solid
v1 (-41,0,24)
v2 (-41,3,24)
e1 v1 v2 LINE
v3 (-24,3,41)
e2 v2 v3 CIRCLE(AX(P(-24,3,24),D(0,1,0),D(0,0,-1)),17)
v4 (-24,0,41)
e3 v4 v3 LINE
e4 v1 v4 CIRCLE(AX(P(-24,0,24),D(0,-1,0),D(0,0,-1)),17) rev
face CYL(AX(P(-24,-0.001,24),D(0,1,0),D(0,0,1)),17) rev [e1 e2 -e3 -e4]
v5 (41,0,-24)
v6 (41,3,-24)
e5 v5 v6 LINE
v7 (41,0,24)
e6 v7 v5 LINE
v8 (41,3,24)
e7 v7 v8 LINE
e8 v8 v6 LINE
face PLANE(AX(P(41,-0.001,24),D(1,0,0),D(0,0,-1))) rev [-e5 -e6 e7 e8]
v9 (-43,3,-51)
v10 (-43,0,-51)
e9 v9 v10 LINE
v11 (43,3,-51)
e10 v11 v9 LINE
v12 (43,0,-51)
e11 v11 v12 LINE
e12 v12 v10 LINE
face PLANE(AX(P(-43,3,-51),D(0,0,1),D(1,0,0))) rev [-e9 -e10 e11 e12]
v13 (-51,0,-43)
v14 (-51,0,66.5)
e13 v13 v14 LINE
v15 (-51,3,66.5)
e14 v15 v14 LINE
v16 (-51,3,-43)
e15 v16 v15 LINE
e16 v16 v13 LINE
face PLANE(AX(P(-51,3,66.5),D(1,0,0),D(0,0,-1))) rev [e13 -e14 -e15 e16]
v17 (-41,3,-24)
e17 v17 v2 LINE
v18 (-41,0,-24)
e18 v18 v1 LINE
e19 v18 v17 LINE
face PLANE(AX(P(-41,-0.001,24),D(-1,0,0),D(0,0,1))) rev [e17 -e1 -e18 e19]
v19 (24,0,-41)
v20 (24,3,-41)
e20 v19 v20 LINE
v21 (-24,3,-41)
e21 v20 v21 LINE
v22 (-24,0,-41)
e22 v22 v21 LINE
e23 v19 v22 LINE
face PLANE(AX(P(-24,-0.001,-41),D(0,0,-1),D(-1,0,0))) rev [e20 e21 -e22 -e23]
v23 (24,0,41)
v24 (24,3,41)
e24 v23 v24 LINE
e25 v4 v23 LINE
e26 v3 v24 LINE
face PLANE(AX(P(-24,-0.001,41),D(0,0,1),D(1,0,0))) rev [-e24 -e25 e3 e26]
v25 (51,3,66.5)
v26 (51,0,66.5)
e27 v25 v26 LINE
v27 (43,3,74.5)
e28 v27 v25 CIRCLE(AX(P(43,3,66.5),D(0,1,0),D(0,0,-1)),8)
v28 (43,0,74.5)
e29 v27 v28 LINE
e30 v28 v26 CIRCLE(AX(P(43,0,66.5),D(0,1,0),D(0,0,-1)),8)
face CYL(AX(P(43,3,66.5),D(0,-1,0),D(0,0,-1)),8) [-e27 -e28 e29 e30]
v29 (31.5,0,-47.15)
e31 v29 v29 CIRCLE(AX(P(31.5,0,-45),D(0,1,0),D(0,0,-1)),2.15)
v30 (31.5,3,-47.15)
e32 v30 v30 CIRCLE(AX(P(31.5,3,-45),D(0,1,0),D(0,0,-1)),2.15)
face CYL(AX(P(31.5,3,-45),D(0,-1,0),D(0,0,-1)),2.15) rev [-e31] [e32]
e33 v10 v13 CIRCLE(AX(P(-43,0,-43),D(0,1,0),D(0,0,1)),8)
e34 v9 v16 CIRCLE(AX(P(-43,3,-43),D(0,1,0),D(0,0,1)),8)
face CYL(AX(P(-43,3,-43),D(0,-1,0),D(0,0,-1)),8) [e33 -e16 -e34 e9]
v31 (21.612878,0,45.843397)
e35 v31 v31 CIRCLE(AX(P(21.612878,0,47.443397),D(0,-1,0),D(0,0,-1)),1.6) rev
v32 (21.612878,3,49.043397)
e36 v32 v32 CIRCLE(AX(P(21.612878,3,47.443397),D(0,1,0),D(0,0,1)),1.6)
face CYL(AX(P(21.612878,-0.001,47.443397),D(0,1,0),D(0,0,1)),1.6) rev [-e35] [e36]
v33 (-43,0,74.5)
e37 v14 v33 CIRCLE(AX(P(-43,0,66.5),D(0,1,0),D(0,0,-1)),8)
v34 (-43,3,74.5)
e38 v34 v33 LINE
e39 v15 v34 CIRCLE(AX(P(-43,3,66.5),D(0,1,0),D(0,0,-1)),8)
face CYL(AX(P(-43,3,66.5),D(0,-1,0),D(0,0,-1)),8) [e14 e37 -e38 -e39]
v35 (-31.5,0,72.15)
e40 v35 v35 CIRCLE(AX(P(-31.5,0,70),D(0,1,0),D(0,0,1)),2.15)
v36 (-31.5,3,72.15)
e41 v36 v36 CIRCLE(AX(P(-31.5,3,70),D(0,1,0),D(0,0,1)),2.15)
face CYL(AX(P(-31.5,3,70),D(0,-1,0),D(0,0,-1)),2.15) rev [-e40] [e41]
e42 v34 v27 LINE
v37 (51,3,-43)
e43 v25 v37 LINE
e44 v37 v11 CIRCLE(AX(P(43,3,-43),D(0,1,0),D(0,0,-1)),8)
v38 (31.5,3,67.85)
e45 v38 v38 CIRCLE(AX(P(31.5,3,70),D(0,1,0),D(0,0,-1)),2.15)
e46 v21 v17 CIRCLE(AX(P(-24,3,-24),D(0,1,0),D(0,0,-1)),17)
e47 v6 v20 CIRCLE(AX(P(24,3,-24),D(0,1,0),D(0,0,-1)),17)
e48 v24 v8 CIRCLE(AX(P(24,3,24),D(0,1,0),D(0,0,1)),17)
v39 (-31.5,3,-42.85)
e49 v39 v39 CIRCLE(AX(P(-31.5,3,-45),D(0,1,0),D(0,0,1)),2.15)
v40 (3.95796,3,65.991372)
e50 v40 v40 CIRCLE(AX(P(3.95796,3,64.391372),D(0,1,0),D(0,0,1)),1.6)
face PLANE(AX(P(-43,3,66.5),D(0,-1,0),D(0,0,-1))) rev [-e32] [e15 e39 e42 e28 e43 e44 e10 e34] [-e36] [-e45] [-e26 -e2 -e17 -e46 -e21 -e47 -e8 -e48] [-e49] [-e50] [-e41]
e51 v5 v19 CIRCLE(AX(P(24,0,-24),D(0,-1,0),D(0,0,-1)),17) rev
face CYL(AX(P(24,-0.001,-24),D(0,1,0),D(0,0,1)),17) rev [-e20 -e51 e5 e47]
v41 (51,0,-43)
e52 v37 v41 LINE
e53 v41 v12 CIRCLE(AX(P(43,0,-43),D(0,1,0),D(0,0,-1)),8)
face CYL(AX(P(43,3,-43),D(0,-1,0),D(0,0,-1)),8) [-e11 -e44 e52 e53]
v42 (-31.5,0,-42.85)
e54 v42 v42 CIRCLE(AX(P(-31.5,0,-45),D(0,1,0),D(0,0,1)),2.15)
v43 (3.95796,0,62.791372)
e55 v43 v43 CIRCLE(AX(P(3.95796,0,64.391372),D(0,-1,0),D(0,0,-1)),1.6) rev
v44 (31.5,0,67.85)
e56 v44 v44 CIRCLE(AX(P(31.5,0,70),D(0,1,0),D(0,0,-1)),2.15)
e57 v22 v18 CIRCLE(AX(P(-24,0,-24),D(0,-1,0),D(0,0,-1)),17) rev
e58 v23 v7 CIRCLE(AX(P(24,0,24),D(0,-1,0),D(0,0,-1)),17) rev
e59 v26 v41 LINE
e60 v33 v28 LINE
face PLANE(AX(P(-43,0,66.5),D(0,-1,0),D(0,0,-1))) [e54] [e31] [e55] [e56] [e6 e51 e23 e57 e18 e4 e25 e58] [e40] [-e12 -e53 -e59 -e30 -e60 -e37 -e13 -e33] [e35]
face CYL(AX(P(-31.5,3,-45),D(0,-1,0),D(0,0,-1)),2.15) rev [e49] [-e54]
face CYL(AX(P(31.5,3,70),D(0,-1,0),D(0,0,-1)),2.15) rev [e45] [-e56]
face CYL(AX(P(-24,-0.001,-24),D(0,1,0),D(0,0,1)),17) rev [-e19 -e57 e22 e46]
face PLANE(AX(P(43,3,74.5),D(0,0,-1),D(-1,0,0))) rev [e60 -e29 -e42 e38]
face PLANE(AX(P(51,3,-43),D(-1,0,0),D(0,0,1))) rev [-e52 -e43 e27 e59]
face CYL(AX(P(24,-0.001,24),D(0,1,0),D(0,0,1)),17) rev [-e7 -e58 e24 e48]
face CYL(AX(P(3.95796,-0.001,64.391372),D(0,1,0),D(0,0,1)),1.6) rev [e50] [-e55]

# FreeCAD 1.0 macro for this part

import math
import FreeCAD as App
import Part
import Sketcher

doc = App.newDocument("Part")
params = doc.addObject("Spreadsheet::Sheet", "Params")
for row, (alias, value) in enumerate([
    ("sketch1_radius", "8 mm"),
    ("sketch1_diameter", "4.3 mm"),
    ("sketch1_width", "86 mm"),
    ("sketch1_height", "109.5 mm"),
    ("pad1_length", "3 mm"),
    ("sketch2_radius", "17 mm"),
    ("sketch2_width", "48 mm"),
    ("sketch3_diameter", "3.2 mm"),
    ("sketch4_diameter", "3.2 mm"),
], start=1):
    params.set(f"A{row}", alias)
    params.set(f"B{row}", "=" + value)
    params.setAlias(f"B{row}", alias)

body = doc.addObject("PartDesign::Body", "Body")

# Sketch on XZ plane
sketch1 = doc.addObject("Sketcher::SketchObject", "Sketch")
body.addObject(sketch1)
sketch1.AttachmentSupport = (doc.XZ_Plane, [""])
sketch1.MapMode = "FlatFace"
sketch1.addGeometry([
    Part.LineSegment(App.Vector(43, -51, 0), App.Vector(-43, -51, 0)),  # 0
    Part.ArcOfCircle(Part.Circle(App.Vector(-43, -43, 0), App.Vector(0, 0, 1), 8), math.radians(-180), math.radians(-90)),  # 1
    Part.LineSegment(App.Vector(-51, -43, 0), App.Vector(-51, 66.5, 0)),  # 2
    Part.ArcOfCircle(Part.Circle(App.Vector(-43, 66.5, 0), App.Vector(0, 0, 1), 8), math.radians(90), math.radians(180)),  # 3
    Part.LineSegment(App.Vector(-43, 74.5, 0), App.Vector(43, 74.5, 0)),  # 4
    Part.ArcOfCircle(Part.Circle(App.Vector(43, 66.5, 0), App.Vector(0, 0, 1), 8), math.radians(0), math.radians(90)),  # 5
    Part.LineSegment(App.Vector(51, 66.5, 0), App.Vector(51, -43, 0)),  # 6
    Part.ArcOfCircle(Part.Circle(App.Vector(43, -43, 0), App.Vector(0, 0, 1), 8), math.radians(-90), math.radians(0)),  # 7
    Part.Circle(App.Vector(31.5, 70, 0), App.Vector(0, 0, 1), 2.15),  # 8
    Part.Circle(App.Vector(-31.5, 70, 0), App.Vector(0, 0, 1), 2.15),  # 9
    Part.Circle(App.Vector(31.5, -45, 0), App.Vector(0, 0, 1), 2.15),  # 10
    Part.Circle(App.Vector(-31.5, -45, 0), App.Vector(0, 0, 1), 2.15),  # 11
], False)
sketch1.addConstraint([
    Sketcher.Constraint("Tangent", 0, 2, 1, 2),
    Sketcher.Constraint("Tangent", 1, 1, 2, 1),
    Sketcher.Constraint("Tangent", 2, 2, 3, 2),
    Sketcher.Constraint("Tangent", 3, 1, 4, 1),
    Sketcher.Constraint("Tangent", 4, 2, 5, 2),
    Sketcher.Constraint("Tangent", 5, 1, 6, 1),
    Sketcher.Constraint("Tangent", 6, 2, 7, 2),
    Sketcher.Constraint("Tangent", 7, 1, 0, 1),
    Sketcher.Constraint("Horizontal", 0),
    Sketcher.Constraint("Vertical", 2),
    Sketcher.Constraint("Horizontal", 4),
    Sketcher.Constraint("Vertical", 6),
    Sketcher.Constraint("Equal", 1, 3),
    Sketcher.Constraint("Equal", 3, 5),
    Sketcher.Constraint("Equal", 5, 7),
    Sketcher.Constraint("Equal", 8, 9),
    Sketcher.Constraint("Equal", 9, 10),
    Sketcher.Constraint("Equal", 10, 11),
    Sketcher.Constraint("Symmetric", 8, 3, 9, 3, -2),
    Sketcher.Constraint("Symmetric", 10, 3, 11, 3, -2),
    Sketcher.Constraint("Vertical", 8, 3, 10, 3),
    Sketcher.Constraint("Radius", 1, 8.0),
    Sketcher.Constraint("Diameter", 8, 4.3),
    Sketcher.Constraint("DistanceX", 0, 2, 0, 1, 86.0),
    Sketcher.Constraint("DistanceY", 2, 1, 2, 2, 109.5),
    Sketcher.Constraint("DistanceX", 1, 3, -1, 1, 43.0),
    Sketcher.Constraint("DistanceY", 1, 3, -1, 1, 43.0),
    Sketcher.Constraint("DistanceY", -1, 1, 8, 3, 70.0),
    Sketcher.Constraint("DistanceY", 10, 3, -1, 1, 45.0),
    Sketcher.Constraint("DistanceX", 9, 3, 8, 3, 63.0),
])
sketch1.setExpression("Constraints[21]", "Params.sketch1_radius")
sketch1.setExpression("Constraints[22]", "Params.sketch1_diameter")
sketch1.setExpression("Constraints[23]", "Params.sketch1_width")
sketch1.setExpression("Constraints[24]", "Params.sketch1_height")
pad1 = doc.addObject("PartDesign::Pad", "Pad")
body.addObject(pad1)
pad1.Profile = sketch1
pad1.setExpression("Length", "Params.pad1_length")
pad1.Reversed = True

# Sketch on XZ plane
sketch2 = doc.addObject("Sketcher::SketchObject", "Sketch001")
body.addObject(sketch2)
sketch2.AttachmentSupport = (doc.XZ_Plane, [""])
sketch2.MapMode = "FlatFace"
sketch2.AttachmentOffset = App.Placement(App.Vector(0, 0, -3), App.Rotation())
sketch2.addGeometry([
    Part.LineSegment(App.Vector(-24, 41, 0), App.Vector(24, 41, 0)),  # 0
    Part.ArcOfCircle(Part.Circle(App.Vector(24, 24, 0), App.Vector(0, 0, 1), 17), math.radians(0), math.radians(90)),  # 1
    Part.LineSegment(App.Vector(41, 24, 0), App.Vector(41, -24, 0)),  # 2
    Part.ArcOfCircle(Part.Circle(App.Vector(24, -24, 0), App.Vector(0, 0, 1), 17), math.radians(-90), math.radians(0)),  # 3
    Part.LineSegment(App.Vector(24, -41, 0), App.Vector(-24, -41, 0)),  # 4
    Part.ArcOfCircle(Part.Circle(App.Vector(-24, -24, 0), App.Vector(0, 0, 1), 17), math.radians(-180), math.radians(-90)),  # 5
    Part.LineSegment(App.Vector(-41, -24, 0), App.Vector(-41, 24, 0)),  # 6
    Part.ArcOfCircle(Part.Circle(App.Vector(-24, 24, 0), App.Vector(0, 0, 1), 17), math.radians(90), math.radians(180)),  # 7
], False)
sketch2.addConstraint([
    Sketcher.Constraint("Tangent", 0, 2, 1, 2),
    Sketcher.Constraint("Tangent", 1, 1, 2, 1),
    Sketcher.Constraint("Tangent", 2, 2, 3, 2),
    Sketcher.Constraint("Tangent", 3, 1, 4, 1),
    Sketcher.Constraint("Tangent", 4, 2, 5, 2),
    Sketcher.Constraint("Tangent", 5, 1, 6, 1),
    Sketcher.Constraint("Tangent", 6, 2, 7, 2),
    Sketcher.Constraint("Tangent", 7, 1, 0, 1),
    Sketcher.Constraint("Horizontal", 0),
    Sketcher.Constraint("Vertical", 2),
    Sketcher.Constraint("Horizontal", 4),
    Sketcher.Constraint("Vertical", 6),
    Sketcher.Constraint("Equal", 1, 3),
    Sketcher.Constraint("Equal", 3, 5),
    Sketcher.Constraint("Equal", 5, 7),
    Sketcher.Constraint("Symmetric", 1, 3, 5, 3, -1, 1),
    Sketcher.Constraint("Equal", 4, 2),
    Sketcher.Constraint("Radius", 1, 17.0),
    Sketcher.Constraint("DistanceX", 0, 1, 0, 2, 48.0),
])
sketch2.setExpression("Constraints[17]", "Params.sketch2_radius")
sketch2.setExpression("Constraints[18]", "Params.sketch2_width")
pocket1 = doc.addObject("PartDesign::Pocket", "Pocket")
body.addObject(pocket1)
pocket1.Profile = sketch2
pocket1.Type = "UpToFirst"
pocket1.Reversed = True

# Sketch on XZ plane
sketch3 = doc.addObject("Sketcher::SketchObject", "Sketch002")
body.addObject(sketch3)
sketch3.AttachmentSupport = (doc.XZ_Plane, [""])
sketch3.MapMode = "FlatFace"
sketch3.AttachmentOffset = App.Placement(App.Vector(0, 0, -3), App.Rotation())
sketch3.addGeometry(Part.Circle(App.Vector(21.612878, 47.443397, 0), App.Vector(0, 0, 1), 1.6), False)
sketch3.addConstraint([
    Sketcher.Constraint("Diameter", 0, 3.2),
    Sketcher.Constraint("DistanceX", -1, 1, 0, 3, 21.612878),
    Sketcher.Constraint("DistanceY", -1, 1, 0, 3, 47.443397),
])
sketch3.setExpression("Constraints[0]", "Params.sketch3_diameter")
pocket2 = doc.addObject("PartDesign::Pocket", "Pocket001")
body.addObject(pocket2)
pocket2.Profile = sketch3
pocket2.Type = "UpToFirst"
pocket2.Reversed = True

# Sketch on XZ plane
sketch4 = doc.addObject("Sketcher::SketchObject", "Sketch003")
body.addObject(sketch4)
sketch4.AttachmentSupport = (doc.XZ_Plane, [""])
sketch4.MapMode = "FlatFace"
sketch4.AttachmentOffset = App.Placement(App.Vector(0, 0, -3), App.Rotation())
sketch4.addGeometry(Part.Circle(App.Vector(3.95796, 64.391372, 0), App.Vector(0, 0, 1), 1.6), False)
sketch4.addConstraint([
    Sketcher.Constraint("Diameter", 0, 3.2),
    Sketcher.Constraint("DistanceX", -1, 1, 0, 3, 3.95796),
    Sketcher.Constraint("DistanceY", -1, 1, 0, 3, 64.391372),
])
sketch4.setExpression("Constraints[0]", "Params.sketch4_diameter")
pocket3 = doc.addObject("PartDesign::Pocket", "Pocket002")
body.addObject(pocket3)
pocket3.Profile = sketch4
pocket3.Type = "UpToFirst"
pocket3.Reversed = True

doc.recompute()
